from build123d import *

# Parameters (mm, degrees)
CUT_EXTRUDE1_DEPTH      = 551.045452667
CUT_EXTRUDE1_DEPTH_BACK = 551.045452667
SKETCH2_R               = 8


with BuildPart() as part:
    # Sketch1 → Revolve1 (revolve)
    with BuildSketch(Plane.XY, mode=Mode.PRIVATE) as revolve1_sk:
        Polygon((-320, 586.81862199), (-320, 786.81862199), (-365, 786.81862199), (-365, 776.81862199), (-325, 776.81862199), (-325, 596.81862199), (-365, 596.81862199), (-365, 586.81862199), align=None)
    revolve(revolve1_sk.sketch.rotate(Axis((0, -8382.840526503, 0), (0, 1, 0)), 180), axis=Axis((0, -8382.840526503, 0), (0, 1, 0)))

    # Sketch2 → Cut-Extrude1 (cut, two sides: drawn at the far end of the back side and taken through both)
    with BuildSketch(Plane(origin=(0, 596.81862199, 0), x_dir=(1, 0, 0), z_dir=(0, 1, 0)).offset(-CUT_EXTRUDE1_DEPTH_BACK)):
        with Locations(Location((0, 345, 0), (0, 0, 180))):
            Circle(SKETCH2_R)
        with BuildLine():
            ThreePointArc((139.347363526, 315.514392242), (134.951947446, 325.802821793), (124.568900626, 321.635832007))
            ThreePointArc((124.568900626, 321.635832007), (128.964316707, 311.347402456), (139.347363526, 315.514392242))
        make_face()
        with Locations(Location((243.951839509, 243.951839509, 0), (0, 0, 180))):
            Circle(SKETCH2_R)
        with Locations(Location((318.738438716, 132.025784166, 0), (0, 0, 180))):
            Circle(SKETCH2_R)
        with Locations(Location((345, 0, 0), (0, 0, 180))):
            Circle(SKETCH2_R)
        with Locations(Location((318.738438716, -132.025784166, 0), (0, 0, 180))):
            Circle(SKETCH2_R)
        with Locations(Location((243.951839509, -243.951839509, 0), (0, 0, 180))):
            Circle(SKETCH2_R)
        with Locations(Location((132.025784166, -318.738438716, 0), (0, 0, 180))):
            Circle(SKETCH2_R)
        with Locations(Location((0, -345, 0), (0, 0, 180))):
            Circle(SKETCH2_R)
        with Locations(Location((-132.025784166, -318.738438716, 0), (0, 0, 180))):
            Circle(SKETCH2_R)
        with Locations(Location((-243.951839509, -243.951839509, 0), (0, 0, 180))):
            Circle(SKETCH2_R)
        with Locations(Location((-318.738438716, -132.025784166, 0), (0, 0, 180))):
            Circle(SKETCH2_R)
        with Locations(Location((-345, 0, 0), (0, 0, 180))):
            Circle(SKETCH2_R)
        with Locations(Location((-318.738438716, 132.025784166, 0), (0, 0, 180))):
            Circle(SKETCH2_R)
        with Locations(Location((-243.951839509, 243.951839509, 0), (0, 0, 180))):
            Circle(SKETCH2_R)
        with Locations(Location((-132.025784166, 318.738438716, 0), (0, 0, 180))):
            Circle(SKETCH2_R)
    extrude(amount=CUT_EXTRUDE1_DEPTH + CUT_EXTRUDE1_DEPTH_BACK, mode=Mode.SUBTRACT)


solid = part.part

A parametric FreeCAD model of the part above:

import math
import FreeCAD as App
import Part
import Sketcher

V = App.Vector

doc = App.newDocument("Part")
body = doc.addObject("PartDesign::Body", "Body")

# Sketch on XY plane
sketch1 = doc.addObject("Sketcher::SketchObject", "Sketch")
body.addObject(sketch1)
sketch1.AttachmentSupport = (doc.XY_Plane, [""])
sketch1.MapMode = "FlatFace"
sketch1.addGeometry([
    Part.LineSegment(V(-320, 587, 0), V(-320, 787, 0)),  # 0
    Part.LineSegment(V(-320, 787, 0), V(-365, 787, 0)),  # 1
    Part.LineSegment(V(-365, 787, 0), V(-365, 777, 0)),  # 2
    Part.LineSegment(V(-365, 777, 0), V(-325, 777, 0)),  # 3
    Part.LineSegment(V(-325, 777, 0), V(-325, 597, 0)),  # 4
    Part.LineSegment(V(-325, 597, 0), V(-365, 597, 0)),  # 5
    Part.LineSegment(V(-365, 597, 0), V(-365, 587, 0)),  # 6
    Part.LineSegment(V(-365, 587, 0), V(-320, 587, 0)),  # 7
], False)
sketch1.addConstraint([
    Sketcher.Constraint("Coincident", 0, 2, 1, 1),
    Sketcher.Constraint("Coincident", 1, 2, 2, 1),
    Sketcher.Constraint("Coincident", 2, 2, 3, 1),
    Sketcher.Constraint("Coincident", 3, 2, 4, 1),
    Sketcher.Constraint("Coincident", 4, 2, 5, 1),
    Sketcher.Constraint("Coincident", 5, 2, 6, 1),
    Sketcher.Constraint("Coincident", 6, 2, 7, 1),
    Sketcher.Constraint("Coincident", 7, 2, 0, 1),
    Sketcher.Constraint("Vertical", 0),
    Sketcher.Constraint("Horizontal", 1),
    Sketcher.Constraint("Vertical", 2),
    Sketcher.Constraint("Horizontal", 3),
    Sketcher.Constraint("Vertical", 4),
    Sketcher.Constraint("Horizontal", 5),
    Sketcher.Constraint("Vertical", 6),
    Sketcher.Constraint("Horizontal", 7),
    Sketcher.Constraint("Vertical", 2, 2, 5, 2),
    Sketcher.Constraint("Equal", 2, 6),
    Sketcher.Constraint("DistanceX", 1, 2, 1, 1, 45.0),
    Sketcher.Constraint("DistanceX", 3, 1, 3, 2, 40.0),
    Sketcher.Constraint("DistanceY", 0, 1, 0, 2, 200.0),
    Sketcher.Constraint("DistanceY", 2, 2, 2, 1, 10.0),
    Sketcher.Constraint("DistanceX", 0, 2, -1, 1, 320.0),
    Sketcher.Constraint("DistanceY", -1, 1, 0, 2, 786.818622),
])
revolution = doc.addObject("PartDesign::Revolution", "Revolution")
body.addObject(revolution)
revolution.Profile = sketch1
revolution.ReferenceAxis = (sketch1, ["V_Axis"])
revolution.Angle = 360

# Sketch on XZ plane
sketch2 = doc.addObject("Sketcher::SketchObject", "Sketch001")
body.addObject(sketch2)
sketch2.AttachmentSupport = (doc.XZ_Plane, [""])
sketch2.MapMode = "FlatFace"
sketch2.AttachmentOffset = App.Placement(V(0, 0, -596.818622), App.Rotation())
sketch2.addGeometry([
    Part.Circle(V(0, -345, 0), V(0, 0, 1), 8),  # 0
    Part.ArcOfCircle(Part.Circle(V(132, -318, 0), V(0, 0, 1), 8), math.radians(-156), math.radians(21)),  # 1
    Part.ArcOfCircle(Part.Circle(V(132, -319, 0), V(0, 0, 1), 8), math.radians(24), math.radians(201)),  # 2
    Part.Circle(V(244, -244, 0), V(0, 0, 1), 8),  # 3
    Part.Circle(V(319, -132, 0), V(0, 0, 1), 8),  # 4
    Part.Circle(V(345, 0, 0), V(0, 0, 1), 8),  # 5
    Part.Circle(V(319, 132, 0), V(0, 0, 1), 8),  # 6
    Part.Circle(V(244, 244, 0), V(0, 0, 1), 8),  # 7
    Part.Circle(V(132, 319, 0), V(0, 0, 1), 8),  # 8
    Part.Circle(V(0, 345, 0), V(0, 0, 1), 8),  # 9
    Part.Circle(V(-132, 319, 0), V(0, 0, 1), 8),  # 10
    Part.Circle(V(-244, 244, 0), V(0, 0, 1), 8),  # 11
    Part.Circle(V(-319, 132, 0), V(0, 0, 1), 8),  # 12
    Part.Circle(V(-345, 0, 0), V(0, 0, 1), 8),  # 13
    Part.Circle(V(-319, -132, 0), V(0, 0, 1), 8),  # 14
    Part.Circle(V(-244, -244, 0), V(0, 0, 1), 8),  # 15
    Part.Circle(V(-132, -319, 0), V(0, 0, 1), 8),  # 16
], False)
sketch2.addConstraint([
    Sketcher.Constraint("Coincident", 1, 1, 2, 2),
    Sketcher.Constraint("Coincident", 2, 1, 1, 2),
    Sketcher.Constraint("Equal", 0, 1),
    Sketcher.Constraint("Equal", 1, 2),
    Sketcher.Constraint("Equal", 2, 3),
    Sketcher.Constraint("Equal", 3, 4),
    Sketcher.Constraint("Equal", 4, 5),
    Sketcher.Constraint("Equal", 5, 6),
    Sketcher.Constraint("Equal", 6, 7),
    Sketcher.Constraint("Equal", 7, 8),
    Sketcher.Constraint("Equal", 8, 9),
    Sketcher.Constraint("Equal", 9, 10),
    Sketcher.Constraint("Equal", 10, 11),
    Sketcher.Constraint("Equal", 11, 12),
    Sketcher.Constraint("Equal", 12, 13),
    Sketcher.Constraint("Equal", 13, 14),
    Sketcher.Constraint("Equal", 14, 15),
    Sketcher.Constraint("Equal", 15, 16),
    Sketcher.Constraint("Symmetric", 0, 3, 9, 3, -1, 1),
    Sketcher.Constraint("Symmetric", 2, 3, 10, 3, -1, 1),
    Sketcher.Constraint("Symmetric", 3, 3, 11, 3, -1, 1),
    Sketcher.Constraint("Symmetric", 4, 3, 12, 3, -1, 1),
    Sketcher.Constraint("Symmetric", 5, 3, 13, 3, -1, 1),
    Sketcher.Constraint("Symmetric", 6, 3, 14, 3, -1, 1),
    Sketcher.Constraint("Symmetric", 7, 3, 15, 3, -1, 1),
    Sketcher.Constraint("Symmetric", 8, 3, 16, 3, -1, 1),
    Sketcher.Constraint("Symmetric", 8, 3, 10, 3, -2),
    Sketcher.Constraint("Symmetric", 7, 3, 11, 3, -2),
    Sketcher.Constraint("Symmetric", 6, 3, 12, 3, -2),
    Sketcher.Constraint("PointOnObject", 0, 3, -2),
    Sketcher.Constraint("PointOnObject", 5, 3, -1),
    Sketcher.Constraint("Diameter", 0, 16.0),
    Sketcher.Constraint("DistanceY", 0, 3, -1, 1, 345.0),
    Sketcher.Constraint("DistanceX", -1, 1, 5, 3, 345.0),
    Sketcher.Constraint("DistanceY", 1, 3, 4, 3, 186.386001),
    Sketcher.Constraint("DistanceX", -1, 1, 1, 1, 124.568901),
    Sketcher.Constraint("DistanceY", 2, 3, 3, 3, 74.786599),
    Sketcher.Constraint("DistanceX", 3, 3, 4, 3, 74.786599),
    Sketcher.Constraint("DistanceX", -1, 1, 1, 3, 131.89048),
    Sketcher.Constraint("DistanceY", 2, 3, -1, 1, 318.738439),
    Sketcher.Constraint("DistanceX", -1, 1, 3, 3, 243.95184),
    Sketcher.Constraint("DistanceY", 4, 3, 6, 3, 264.051568),
])
pocket1 = doc.addObject("PartDesign::Pocket", "Pocket")
body.addObject(pocket1)
pocket1.Profile = sketch2
pocket1.Type = "ThroughAll"
pocket1.Midplane = True

doc.recompute()
